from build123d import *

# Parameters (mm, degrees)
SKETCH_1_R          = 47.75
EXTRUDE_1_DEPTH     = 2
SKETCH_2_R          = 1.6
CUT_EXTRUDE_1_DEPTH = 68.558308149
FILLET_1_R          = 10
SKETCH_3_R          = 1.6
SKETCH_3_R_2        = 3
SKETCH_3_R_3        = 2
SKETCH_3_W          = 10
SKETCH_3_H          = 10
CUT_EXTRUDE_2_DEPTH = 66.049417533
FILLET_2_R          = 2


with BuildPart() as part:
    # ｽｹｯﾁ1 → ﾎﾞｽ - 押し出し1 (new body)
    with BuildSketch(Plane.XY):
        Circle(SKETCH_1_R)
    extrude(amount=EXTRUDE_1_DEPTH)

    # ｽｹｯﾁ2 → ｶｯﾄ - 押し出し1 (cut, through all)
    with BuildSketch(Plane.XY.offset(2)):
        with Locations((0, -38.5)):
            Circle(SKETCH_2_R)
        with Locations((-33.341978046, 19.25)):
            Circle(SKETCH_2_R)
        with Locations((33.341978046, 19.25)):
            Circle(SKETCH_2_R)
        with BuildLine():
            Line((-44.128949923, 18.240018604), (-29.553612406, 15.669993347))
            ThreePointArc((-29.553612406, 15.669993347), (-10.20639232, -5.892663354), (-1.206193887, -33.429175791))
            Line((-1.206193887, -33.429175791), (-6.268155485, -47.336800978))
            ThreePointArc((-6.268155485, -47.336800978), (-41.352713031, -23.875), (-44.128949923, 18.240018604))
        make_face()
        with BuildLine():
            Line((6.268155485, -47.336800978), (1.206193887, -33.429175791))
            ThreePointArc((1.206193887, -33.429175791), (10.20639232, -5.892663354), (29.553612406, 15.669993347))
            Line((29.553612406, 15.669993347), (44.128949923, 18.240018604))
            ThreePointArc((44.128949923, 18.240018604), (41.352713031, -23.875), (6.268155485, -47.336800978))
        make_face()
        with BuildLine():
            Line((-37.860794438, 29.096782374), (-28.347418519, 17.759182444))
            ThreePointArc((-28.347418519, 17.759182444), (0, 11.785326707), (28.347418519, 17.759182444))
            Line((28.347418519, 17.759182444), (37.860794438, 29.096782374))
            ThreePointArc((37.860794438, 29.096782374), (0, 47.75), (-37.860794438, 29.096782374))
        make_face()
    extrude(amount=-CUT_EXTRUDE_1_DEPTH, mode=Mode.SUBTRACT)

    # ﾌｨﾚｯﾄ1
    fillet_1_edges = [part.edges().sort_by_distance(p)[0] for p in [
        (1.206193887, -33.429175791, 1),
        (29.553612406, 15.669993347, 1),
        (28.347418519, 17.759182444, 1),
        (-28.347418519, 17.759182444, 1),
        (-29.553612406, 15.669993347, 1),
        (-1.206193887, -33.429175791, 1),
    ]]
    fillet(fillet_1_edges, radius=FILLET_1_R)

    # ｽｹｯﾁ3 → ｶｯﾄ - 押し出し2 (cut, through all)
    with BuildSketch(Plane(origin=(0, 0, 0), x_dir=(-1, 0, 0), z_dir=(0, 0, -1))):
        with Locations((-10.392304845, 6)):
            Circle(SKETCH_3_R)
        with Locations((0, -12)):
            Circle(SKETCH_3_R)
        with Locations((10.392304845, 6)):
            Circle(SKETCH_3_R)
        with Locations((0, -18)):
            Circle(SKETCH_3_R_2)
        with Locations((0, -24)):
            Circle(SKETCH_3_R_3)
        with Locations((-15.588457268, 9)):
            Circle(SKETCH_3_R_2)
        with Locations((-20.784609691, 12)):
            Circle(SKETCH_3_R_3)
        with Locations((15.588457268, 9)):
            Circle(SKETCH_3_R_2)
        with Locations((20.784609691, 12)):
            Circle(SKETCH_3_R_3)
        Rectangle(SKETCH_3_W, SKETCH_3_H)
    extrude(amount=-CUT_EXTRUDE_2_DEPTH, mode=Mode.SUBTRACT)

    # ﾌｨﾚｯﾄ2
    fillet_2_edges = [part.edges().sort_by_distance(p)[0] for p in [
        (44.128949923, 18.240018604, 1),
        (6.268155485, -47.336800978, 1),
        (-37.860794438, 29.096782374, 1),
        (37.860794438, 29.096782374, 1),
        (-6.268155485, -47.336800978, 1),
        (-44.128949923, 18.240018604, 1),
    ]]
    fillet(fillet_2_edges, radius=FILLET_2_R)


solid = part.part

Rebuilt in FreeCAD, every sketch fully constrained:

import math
import FreeCAD as App
import Part
import Sketcher
Q = App.Units.Quantity


def edges_at(feature, points):
    """Names of the edges that pass closest to the given points."""
    edges = feature.Shape.Edges
    near = lambda p: min(range(len(edges)), key=lambda i: edges[i].distToShape(Part.Vertex(*p))[0])
    return sorted({f"Edge{near(p) + 1}" for p in points})


def add_polygon(sketch, points):
    """Adds a closed chain of lines whose ends are joined by coincident constraints."""
    first, n = sketch.GeometryCount, len(points)
    for a, b in zip(points, points[1:] + points[:1]):
        sketch.addGeometry(Part.LineSegment(App.Vector(*a, 0), App.Vector(*b, 0)), False)
    for i in range(n):
        sketch.addConstraint(Sketcher.Constraint("Coincident", first + i, 2, first + (i + 1) % n, 1))

doc = App.newDocument("Part")
body = doc.addObject("PartDesign::Body", "Body")

sketch1 = doc.addObject("Sketcher::SketchObject", "Sketch")
body.addObject(sketch1)
sketch1.AttachmentSupport = (doc.XY_Plane, [""])
sketch1.MapMode = "FlatFace"
sketch1.addGeometry(Part.Circle(App.Vector(0, 0, 0), App.Vector(0, 0, 1), 48), False)
sketch1.addConstraint([
    Sketcher.Constraint("Coincident", 0, 3, -1, 1),
    Sketcher.Constraint("Diameter", 0, Q("95.5 mm")),
])
pad1 = doc.addObject("PartDesign::Pad", "Pad")
body.addObject(pad1)
pad1.Profile = sketch1
pad1.Length = 2

sketch2 = doc.addObject("Sketcher::SketchObject", "Sketch001")
body.addObject(sketch2)
sketch2.AttachmentSupport = (doc.XY_Plane, [""])
sketch2.MapMode = "FlatFace"
sketch2.AttachmentOffset = App.Placement(App.Vector(0, 0, 2), App.Rotation())
sketch2.addGeometry([
    Part.Circle(App.Vector(0, -38.5, 0), App.Vector(0, 0, 1), 1.6),
    Part.Circle(App.Vector(-33.3, 19.2, 0), App.Vector(0, 0, 1), 1.6),
    Part.Circle(App.Vector(33.3, 19.2, 0), App.Vector(0, 0, 1), 1.6),
    Part.LineSegment(App.Vector(-29.6, 15.7, 0), App.Vector(-44.1, 18.2, 0)),
    Part.ArcOfCircle(Part.Circle(App.Vector(0, 0, 0), App.Vector(0, 0, 1), 47.8), math.radians(158), math.radians(262)),
    Part.LineSegment(App.Vector(-6.3, -47.3, 0), App.Vector(-1.2, -33.4, 0)),
    Part.ArcOfCircle(Part.Circle(App.Vector(-71, -41, 0), App.Vector(0, 0, 1), 70.2), math.radians(6), math.radians(54)),
    Part.LineSegment(App.Vector(1.2, -33.4, 0), App.Vector(6.3, -47.3, 0)),
    Part.ArcOfCircle(Part.Circle(App.Vector(0, 0, 0), App.Vector(0, 0, 1), 47.8), math.radians(-82), math.radians(22)),
    Part.LineSegment(App.Vector(44.1, 18.2, 0), App.Vector(29.6, 15.7, 0)),
    Part.ArcOfCircle(Part.Circle(App.Vector(71, -41, 0), App.Vector(0, 0, 1), 70.2), math.radians(126), math.radians(174)),
    Part.LineSegment(App.Vector(-37.9, 29.1, 0), App.Vector(-28.3, 17.8, 0)),
    Part.ArcOfCircle(Part.Circle(App.Vector(0, 82, 0), App.Vector(0, 0, 1), 70.2), math.radians(-114), math.radians(-66)),
    Part.LineSegment(App.Vector(28.3, 17.8, 0), App.Vector(37.9, 29.1, 0)),
    Part.ArcOfCircle(Part.Circle(App.Vector(0, 0, 0), App.Vector(0, 0, 1), 47.8), math.radians(38), math.radians(142)),
], False)
sketch2.addConstraint([
    Sketcher.Constraint("Coincident", 3, 2, 4, 1),
    Sketcher.Constraint("Coincident", 4, 2, 5, 1),
    Sketcher.Constraint("Coincident", 5, 2, 6, 1),
    Sketcher.Constraint("Coincident", 6, 2, 3, 1),
    Sketcher.Constraint("Coincident", 7, 2, 8, 1),
    Sketcher.Constraint("Coincident", 8, 2, 9, 1),
    Sketcher.Constraint("Coincident", 9, 2, 10, 1),
    Sketcher.Constraint("Coincident", 10, 2, 7, 1),
    Sketcher.Constraint("Coincident", 11, 2, 12, 1),
    Sketcher.Constraint("Coincident", 12, 2, 13, 1),
    Sketcher.Constraint("Coincident", 13, 2, 14, 1),
    Sketcher.Constraint("Coincident", 14, 2, 11, 1),
    Sketcher.Constraint("Coincident", 4, 3, -1, 1),
    Sketcher.Constraint("Coincident", 8, 3, -1, 1),
    Sketcher.Constraint("Coincident", 14, 3, -1, 1),
    Sketcher.Constraint("Equal", 0, 1),
    Sketcher.Constraint("Equal", 1, 2),
    Sketcher.Constraint("Equal", 4, 8),
    Sketcher.Constraint("Equal", 6, 10),
    Sketcher.Constraint("Equal", 10, 12),
    Sketcher.Constraint("Equal", 8, 14),
    Sketcher.Constraint("Symmetric", 1, 3, 2, 3, -2),
    Sketcher.Constraint("Symmetric", 6, 3, 10, 3, -2),
    Sketcher.Constraint("Symmetric", 11, 2, 12, 2, -2),
    Sketcher.Constraint("PointOnObject", 0, 3, -2),
    Sketcher.Constraint("Horizontal", 4, 2, 7, 2),
    Sketcher.Constraint("Horizontal", 3, 2, 8, 2),
    Sketcher.Constraint("Horizontal", 6, 2, 9, 2),
    Sketcher.Constraint("Horizontal", 5, 2, 10, 2),
    Sketcher.Constraint("Horizontal", 13, 2, 14, 2),
    Sketcher.Constraint("Equal", 3, 5),
    Sketcher.Constraint("Equal", 9, 11),
    Sketcher.Constraint("Diameter", 0, Q("3.2 mm")),
    Sketcher.Constraint("Angle", 3, Q("170 deg")),
    Sketcher.Constraint("Angle", 5, Q("70 deg")),
    Sketcher.Constraint("Angle", 11, Q("-50 deg")),
    Sketcher.Constraint("Radius", 4, Q("47.75 mm")),
    Sketcher.Constraint("DistanceY", 0, 3, -1, 1, Q("38.5 mm")),
    Sketcher.Constraint("DistanceY", -1, 1, 1, 3, Q("19.25 mm")),
    Sketcher.Constraint("DistanceY", -1, 1, 12, 3, Q("82.03 mm")),
    Sketcher.Constraint("DistanceY", 6, 3, -1, 1, Q("41.015 mm")),
    Sketcher.Constraint("Radius", 6, Q("70.244673 mm")),
    Sketcher.Constraint("DistanceY", 4, 2, -1, 1, Q("47.336801 mm")),
    Sketcher.Constraint("DistanceY", 12, 2, 13, 2, Q("11.3376 mm")),
    Sketcher.Constraint("DistanceX", 1, 3, -1, 1, Q("33.341978 mm")),
])
pocket1 = doc.addObject("PartDesign::Pocket", "Pocket")
body.addObject(pocket1)
pocket1.Profile = sketch2
pocket1.Type = "ThroughAll"
doc.recompute()

fillet = doc.addObject("PartDesign::Fillet", "Fillet")
body.addObject(fillet)
fillet.Base = (pocket1, edges_at(pocket1, [
    (1.206, -33.429, 1),
    (29.554, 15.67, 1),
    (28.347, 17.759, 1),
    (-28.347, 17.759, 1),
    (-29.554, 15.67, 1),
    (-1.206, -33.429, 1),
]))
fillet.Radius = 10

sketch3 = doc.addObject("Sketcher::SketchObject", "Sketch002")
body.addObject(sketch3)
sketch3.AttachmentSupport = (doc.XY_Plane, [""])
sketch3.MapMode = "FlatFace"
sketch3.addGeometry(Part.Circle(App.Vector(10.4, 6, 0), App.Vector(0, 0, 1), 1.6), False)
sketch3.addGeometry(Part.Circle(App.Vector(0, -12, 0), App.Vector(0, 0, 1), 1.6), False)
sketch3.addGeometry(Part.Circle(App.Vector(-10.4, 6, 0), App.Vector(0, 0, 1), 1.6), False)
sketch3.addGeometry(Part.Circle(App.Vector(0, -18, 0), App.Vector(0, 0, 1), 3), False)
sketch3.addGeometry(Part.Circle(App.Vector(0, -24, 0), App.Vector(0, 0, 1), 2), False)
sketch3.addGeometry(Part.Circle(App.Vector(15.6, 9, 0), App.Vector(0, 0, 1), 3), False)
sketch3.addGeometry(Part.Circle(App.Vector(20.8, 12, 0), App.Vector(0, 0, 1), 2), False)
sketch3.addGeometry(Part.Circle(App.Vector(-15.6, 9, 0), App.Vector(0, 0, 1), 3), False)
sketch3.addGeometry(Part.Circle(App.Vector(-20.8, 12, 0), App.Vector(0, 0, 1), 2), False)
add_polygon(sketch3, [(5, 5), (5, -5), (-5, -5), (-5, 5)])
sketch3.addConstraint([
    Sketcher.Constraint("Vertical", 9),
    Sketcher.Constraint("Horizontal", 10),
    Sketcher.Constraint("Vertical", 11),
    Sketcher.Constraint("Horizontal", 12),
    Sketcher.Constraint("Equal", 0, 1),
    Sketcher.Constraint("Equal", 1, 2),
    Sketcher.Constraint("Equal", 3, 5),
    Sketcher.Constraint("Equal", 4, 6),
    Sketcher.Constraint("Equal", 5, 7),
    Sketcher.Constraint("Equal", 6, 8),
    Sketcher.Constraint("Symmetric", 9, 2, 11, 2, -1, 1),
    Sketcher.Constraint("Symmetric", 0, 3, 2, 3, -2),
    Sketcher.Constraint("Symmetric", 5, 3, 7, 3, -2),
    Sketcher.Constraint("Symmetric", 6, 3, 8, 3, -2),
    Sketcher.Constraint("PointOnObject", 1, 3, -2),
    Sketcher.Constraint("PointOnObject", 3, 3, -2),
    Sketcher.Constraint("PointOnObject", 4, 3, -2),
    Sketcher.Constraint("Equal", 12, 9),
    Sketcher.Constraint("Diameter", 3, Q("6 mm")),
    Sketcher.Constraint("Diameter", 4, Q("4 mm")),
    Sketcher.Constraint("Diameter", 0, Q("3.2 mm")),
    Sketcher.Constraint("DistanceX", 10, 2, 10, 1, Q("10 mm")),
    Sketcher.Constraint("DistanceY", -1, 1, 0, 3, Q("6 mm")),
    Sketcher.Constraint("DistanceY", 1, 3, -1, 1, Q("12 mm")),
    Sketcher.Constraint("DistanceY", 3, 3, -1, 1, Q("18 mm")),
    Sketcher.Constraint("DistanceY", 4, 3, -1, 1, Q("24 mm")),
    Sketcher.Constraint("DistanceY", -1, 1, 5, 3, Q("9 mm")),
    Sketcher.Constraint("DistanceY", -1, 1, 6, 3, Q("12 mm")),
    Sketcher.Constraint("DistanceX", -1, 1, 6, 3, Q("20.78461 mm")),
    Sketcher.Constraint("DistanceX", 2, 3, 0, 3, Q("20.78461 mm")),
    Sketcher.Constraint("DistanceX", -1, 1, 5, 3, Q("15.588457 mm")),
])
pocket2 = doc.addObject("PartDesign::Pocket", "Pocket001")
body.addObject(pocket2)
pocket2.Profile = sketch3
pocket2.Type = "ThroughAll"
pocket2.Reversed = True
doc.recompute()

fillet2 = doc.addObject("PartDesign::Fillet", "Fillet001")
body.addObject(fillet2)
fillet2.Base = (pocket2, edges_at(pocket2, [
    (44.129, 18.24, 1),
    (6.268, -47.337, 1),
    (-37.861, 29.097, 1),
    (37.861, 29.097, 1),
    (-6.268, -47.337, 1),
    (-44.129, 18.24, 1),
]))
fillet2.Radius = 2

doc.recompute()
